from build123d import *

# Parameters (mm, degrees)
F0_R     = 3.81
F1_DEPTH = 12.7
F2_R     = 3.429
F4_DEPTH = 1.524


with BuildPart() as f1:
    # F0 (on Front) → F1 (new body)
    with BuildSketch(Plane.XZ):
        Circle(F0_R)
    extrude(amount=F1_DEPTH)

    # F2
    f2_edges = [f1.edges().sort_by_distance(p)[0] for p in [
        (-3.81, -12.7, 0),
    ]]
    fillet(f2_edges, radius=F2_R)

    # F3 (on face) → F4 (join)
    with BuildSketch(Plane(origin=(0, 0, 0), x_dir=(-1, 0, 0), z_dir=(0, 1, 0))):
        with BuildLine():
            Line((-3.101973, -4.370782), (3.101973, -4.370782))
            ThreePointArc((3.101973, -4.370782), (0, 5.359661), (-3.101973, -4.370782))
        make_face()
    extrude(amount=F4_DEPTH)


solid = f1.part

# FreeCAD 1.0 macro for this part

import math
import FreeCAD as App
import Part
import Sketcher

V = App.Vector
Q = App.Units.Quantity


def edges_at(feature, points):
    """Names of the edges that pass closest to the given points."""
    edges = feature.Shape.Edges
    near = lambda p: min(range(len(edges)), key=lambda i: edges[i].distToShape(Part.Vertex(*p))[0])
    return sorted({f"Edge{near(p) + 1}" for p in points})

doc = App.newDocument("Part")
body = doc.addObject("PartDesign::Body", "Body")

sketch1 = body.newObject("Sketcher::SketchObject", "Sketch")
sketch1.AttachmentSupport = (doc.getObject("XZ_Plane"), [""])
sketch1.MapMode = "FlatFace"
sketch1.addGeometry(Part.Circle(V(0, 0, 0), V(0, 0, 1), 3.8), False)
sketch1.addConstraint([
    Sketcher.Constraint("Coincident", 0, 3, -1, 1),
    Sketcher.Constraint("Diameter", 0, Q("0.3 in")),
])
pad1 = body.newObject("PartDesign::Pad", "Pad")
pad1.Profile = sketch1
pad1.Length = Q("0.5 in")
doc.recompute()

fillet = body.newObject("PartDesign::Fillet", "Fillet")
fillet.Base = (pad1, edges_at(pad1, [(-3.81, -12.7, 0)]))
fillet.Radius = Q("0.135 in")

sketch2 = body.newObject("Sketcher::SketchObject", "Sketch001")
sketch2.AttachmentSupport = (doc.getObject("XZ_Plane"), [""])
sketch2.MapMode = "FlatFace"
sketch2.addGeometry([
    Part.LineSegment(V(3, -4, 0), V(-3, -4, 0)),
    Part.ArcOfCircle(Part.Circle(V(0, 0, 0), V(0, 0, 1), 5), math.radians(-55), math.radians(235)),
], False)
sketch2.addConstraint([
    Sketcher.Constraint("Coincident", 0, 1, 1, 1),
    Sketcher.Constraint("Coincident", 1, 2, 0, 2),
    Sketcher.Constraint("Horizontal", 0),
    Sketcher.Constraint("Coincident", 1, 3, -1, 1),
    Sketcher.Constraint("Radius", 1, Q("5.359661 mm")),
    Sketcher.Constraint("DistanceX", 0, 2, 0, 1, Q("6.203946 mm")),
])
pad2 = body.newObject("PartDesign::Pad", "Pad001")
pad2.Profile = sketch2
pad2.Length = Q("0.06 in")
pad2.Reversed = True

doc.recompute()
